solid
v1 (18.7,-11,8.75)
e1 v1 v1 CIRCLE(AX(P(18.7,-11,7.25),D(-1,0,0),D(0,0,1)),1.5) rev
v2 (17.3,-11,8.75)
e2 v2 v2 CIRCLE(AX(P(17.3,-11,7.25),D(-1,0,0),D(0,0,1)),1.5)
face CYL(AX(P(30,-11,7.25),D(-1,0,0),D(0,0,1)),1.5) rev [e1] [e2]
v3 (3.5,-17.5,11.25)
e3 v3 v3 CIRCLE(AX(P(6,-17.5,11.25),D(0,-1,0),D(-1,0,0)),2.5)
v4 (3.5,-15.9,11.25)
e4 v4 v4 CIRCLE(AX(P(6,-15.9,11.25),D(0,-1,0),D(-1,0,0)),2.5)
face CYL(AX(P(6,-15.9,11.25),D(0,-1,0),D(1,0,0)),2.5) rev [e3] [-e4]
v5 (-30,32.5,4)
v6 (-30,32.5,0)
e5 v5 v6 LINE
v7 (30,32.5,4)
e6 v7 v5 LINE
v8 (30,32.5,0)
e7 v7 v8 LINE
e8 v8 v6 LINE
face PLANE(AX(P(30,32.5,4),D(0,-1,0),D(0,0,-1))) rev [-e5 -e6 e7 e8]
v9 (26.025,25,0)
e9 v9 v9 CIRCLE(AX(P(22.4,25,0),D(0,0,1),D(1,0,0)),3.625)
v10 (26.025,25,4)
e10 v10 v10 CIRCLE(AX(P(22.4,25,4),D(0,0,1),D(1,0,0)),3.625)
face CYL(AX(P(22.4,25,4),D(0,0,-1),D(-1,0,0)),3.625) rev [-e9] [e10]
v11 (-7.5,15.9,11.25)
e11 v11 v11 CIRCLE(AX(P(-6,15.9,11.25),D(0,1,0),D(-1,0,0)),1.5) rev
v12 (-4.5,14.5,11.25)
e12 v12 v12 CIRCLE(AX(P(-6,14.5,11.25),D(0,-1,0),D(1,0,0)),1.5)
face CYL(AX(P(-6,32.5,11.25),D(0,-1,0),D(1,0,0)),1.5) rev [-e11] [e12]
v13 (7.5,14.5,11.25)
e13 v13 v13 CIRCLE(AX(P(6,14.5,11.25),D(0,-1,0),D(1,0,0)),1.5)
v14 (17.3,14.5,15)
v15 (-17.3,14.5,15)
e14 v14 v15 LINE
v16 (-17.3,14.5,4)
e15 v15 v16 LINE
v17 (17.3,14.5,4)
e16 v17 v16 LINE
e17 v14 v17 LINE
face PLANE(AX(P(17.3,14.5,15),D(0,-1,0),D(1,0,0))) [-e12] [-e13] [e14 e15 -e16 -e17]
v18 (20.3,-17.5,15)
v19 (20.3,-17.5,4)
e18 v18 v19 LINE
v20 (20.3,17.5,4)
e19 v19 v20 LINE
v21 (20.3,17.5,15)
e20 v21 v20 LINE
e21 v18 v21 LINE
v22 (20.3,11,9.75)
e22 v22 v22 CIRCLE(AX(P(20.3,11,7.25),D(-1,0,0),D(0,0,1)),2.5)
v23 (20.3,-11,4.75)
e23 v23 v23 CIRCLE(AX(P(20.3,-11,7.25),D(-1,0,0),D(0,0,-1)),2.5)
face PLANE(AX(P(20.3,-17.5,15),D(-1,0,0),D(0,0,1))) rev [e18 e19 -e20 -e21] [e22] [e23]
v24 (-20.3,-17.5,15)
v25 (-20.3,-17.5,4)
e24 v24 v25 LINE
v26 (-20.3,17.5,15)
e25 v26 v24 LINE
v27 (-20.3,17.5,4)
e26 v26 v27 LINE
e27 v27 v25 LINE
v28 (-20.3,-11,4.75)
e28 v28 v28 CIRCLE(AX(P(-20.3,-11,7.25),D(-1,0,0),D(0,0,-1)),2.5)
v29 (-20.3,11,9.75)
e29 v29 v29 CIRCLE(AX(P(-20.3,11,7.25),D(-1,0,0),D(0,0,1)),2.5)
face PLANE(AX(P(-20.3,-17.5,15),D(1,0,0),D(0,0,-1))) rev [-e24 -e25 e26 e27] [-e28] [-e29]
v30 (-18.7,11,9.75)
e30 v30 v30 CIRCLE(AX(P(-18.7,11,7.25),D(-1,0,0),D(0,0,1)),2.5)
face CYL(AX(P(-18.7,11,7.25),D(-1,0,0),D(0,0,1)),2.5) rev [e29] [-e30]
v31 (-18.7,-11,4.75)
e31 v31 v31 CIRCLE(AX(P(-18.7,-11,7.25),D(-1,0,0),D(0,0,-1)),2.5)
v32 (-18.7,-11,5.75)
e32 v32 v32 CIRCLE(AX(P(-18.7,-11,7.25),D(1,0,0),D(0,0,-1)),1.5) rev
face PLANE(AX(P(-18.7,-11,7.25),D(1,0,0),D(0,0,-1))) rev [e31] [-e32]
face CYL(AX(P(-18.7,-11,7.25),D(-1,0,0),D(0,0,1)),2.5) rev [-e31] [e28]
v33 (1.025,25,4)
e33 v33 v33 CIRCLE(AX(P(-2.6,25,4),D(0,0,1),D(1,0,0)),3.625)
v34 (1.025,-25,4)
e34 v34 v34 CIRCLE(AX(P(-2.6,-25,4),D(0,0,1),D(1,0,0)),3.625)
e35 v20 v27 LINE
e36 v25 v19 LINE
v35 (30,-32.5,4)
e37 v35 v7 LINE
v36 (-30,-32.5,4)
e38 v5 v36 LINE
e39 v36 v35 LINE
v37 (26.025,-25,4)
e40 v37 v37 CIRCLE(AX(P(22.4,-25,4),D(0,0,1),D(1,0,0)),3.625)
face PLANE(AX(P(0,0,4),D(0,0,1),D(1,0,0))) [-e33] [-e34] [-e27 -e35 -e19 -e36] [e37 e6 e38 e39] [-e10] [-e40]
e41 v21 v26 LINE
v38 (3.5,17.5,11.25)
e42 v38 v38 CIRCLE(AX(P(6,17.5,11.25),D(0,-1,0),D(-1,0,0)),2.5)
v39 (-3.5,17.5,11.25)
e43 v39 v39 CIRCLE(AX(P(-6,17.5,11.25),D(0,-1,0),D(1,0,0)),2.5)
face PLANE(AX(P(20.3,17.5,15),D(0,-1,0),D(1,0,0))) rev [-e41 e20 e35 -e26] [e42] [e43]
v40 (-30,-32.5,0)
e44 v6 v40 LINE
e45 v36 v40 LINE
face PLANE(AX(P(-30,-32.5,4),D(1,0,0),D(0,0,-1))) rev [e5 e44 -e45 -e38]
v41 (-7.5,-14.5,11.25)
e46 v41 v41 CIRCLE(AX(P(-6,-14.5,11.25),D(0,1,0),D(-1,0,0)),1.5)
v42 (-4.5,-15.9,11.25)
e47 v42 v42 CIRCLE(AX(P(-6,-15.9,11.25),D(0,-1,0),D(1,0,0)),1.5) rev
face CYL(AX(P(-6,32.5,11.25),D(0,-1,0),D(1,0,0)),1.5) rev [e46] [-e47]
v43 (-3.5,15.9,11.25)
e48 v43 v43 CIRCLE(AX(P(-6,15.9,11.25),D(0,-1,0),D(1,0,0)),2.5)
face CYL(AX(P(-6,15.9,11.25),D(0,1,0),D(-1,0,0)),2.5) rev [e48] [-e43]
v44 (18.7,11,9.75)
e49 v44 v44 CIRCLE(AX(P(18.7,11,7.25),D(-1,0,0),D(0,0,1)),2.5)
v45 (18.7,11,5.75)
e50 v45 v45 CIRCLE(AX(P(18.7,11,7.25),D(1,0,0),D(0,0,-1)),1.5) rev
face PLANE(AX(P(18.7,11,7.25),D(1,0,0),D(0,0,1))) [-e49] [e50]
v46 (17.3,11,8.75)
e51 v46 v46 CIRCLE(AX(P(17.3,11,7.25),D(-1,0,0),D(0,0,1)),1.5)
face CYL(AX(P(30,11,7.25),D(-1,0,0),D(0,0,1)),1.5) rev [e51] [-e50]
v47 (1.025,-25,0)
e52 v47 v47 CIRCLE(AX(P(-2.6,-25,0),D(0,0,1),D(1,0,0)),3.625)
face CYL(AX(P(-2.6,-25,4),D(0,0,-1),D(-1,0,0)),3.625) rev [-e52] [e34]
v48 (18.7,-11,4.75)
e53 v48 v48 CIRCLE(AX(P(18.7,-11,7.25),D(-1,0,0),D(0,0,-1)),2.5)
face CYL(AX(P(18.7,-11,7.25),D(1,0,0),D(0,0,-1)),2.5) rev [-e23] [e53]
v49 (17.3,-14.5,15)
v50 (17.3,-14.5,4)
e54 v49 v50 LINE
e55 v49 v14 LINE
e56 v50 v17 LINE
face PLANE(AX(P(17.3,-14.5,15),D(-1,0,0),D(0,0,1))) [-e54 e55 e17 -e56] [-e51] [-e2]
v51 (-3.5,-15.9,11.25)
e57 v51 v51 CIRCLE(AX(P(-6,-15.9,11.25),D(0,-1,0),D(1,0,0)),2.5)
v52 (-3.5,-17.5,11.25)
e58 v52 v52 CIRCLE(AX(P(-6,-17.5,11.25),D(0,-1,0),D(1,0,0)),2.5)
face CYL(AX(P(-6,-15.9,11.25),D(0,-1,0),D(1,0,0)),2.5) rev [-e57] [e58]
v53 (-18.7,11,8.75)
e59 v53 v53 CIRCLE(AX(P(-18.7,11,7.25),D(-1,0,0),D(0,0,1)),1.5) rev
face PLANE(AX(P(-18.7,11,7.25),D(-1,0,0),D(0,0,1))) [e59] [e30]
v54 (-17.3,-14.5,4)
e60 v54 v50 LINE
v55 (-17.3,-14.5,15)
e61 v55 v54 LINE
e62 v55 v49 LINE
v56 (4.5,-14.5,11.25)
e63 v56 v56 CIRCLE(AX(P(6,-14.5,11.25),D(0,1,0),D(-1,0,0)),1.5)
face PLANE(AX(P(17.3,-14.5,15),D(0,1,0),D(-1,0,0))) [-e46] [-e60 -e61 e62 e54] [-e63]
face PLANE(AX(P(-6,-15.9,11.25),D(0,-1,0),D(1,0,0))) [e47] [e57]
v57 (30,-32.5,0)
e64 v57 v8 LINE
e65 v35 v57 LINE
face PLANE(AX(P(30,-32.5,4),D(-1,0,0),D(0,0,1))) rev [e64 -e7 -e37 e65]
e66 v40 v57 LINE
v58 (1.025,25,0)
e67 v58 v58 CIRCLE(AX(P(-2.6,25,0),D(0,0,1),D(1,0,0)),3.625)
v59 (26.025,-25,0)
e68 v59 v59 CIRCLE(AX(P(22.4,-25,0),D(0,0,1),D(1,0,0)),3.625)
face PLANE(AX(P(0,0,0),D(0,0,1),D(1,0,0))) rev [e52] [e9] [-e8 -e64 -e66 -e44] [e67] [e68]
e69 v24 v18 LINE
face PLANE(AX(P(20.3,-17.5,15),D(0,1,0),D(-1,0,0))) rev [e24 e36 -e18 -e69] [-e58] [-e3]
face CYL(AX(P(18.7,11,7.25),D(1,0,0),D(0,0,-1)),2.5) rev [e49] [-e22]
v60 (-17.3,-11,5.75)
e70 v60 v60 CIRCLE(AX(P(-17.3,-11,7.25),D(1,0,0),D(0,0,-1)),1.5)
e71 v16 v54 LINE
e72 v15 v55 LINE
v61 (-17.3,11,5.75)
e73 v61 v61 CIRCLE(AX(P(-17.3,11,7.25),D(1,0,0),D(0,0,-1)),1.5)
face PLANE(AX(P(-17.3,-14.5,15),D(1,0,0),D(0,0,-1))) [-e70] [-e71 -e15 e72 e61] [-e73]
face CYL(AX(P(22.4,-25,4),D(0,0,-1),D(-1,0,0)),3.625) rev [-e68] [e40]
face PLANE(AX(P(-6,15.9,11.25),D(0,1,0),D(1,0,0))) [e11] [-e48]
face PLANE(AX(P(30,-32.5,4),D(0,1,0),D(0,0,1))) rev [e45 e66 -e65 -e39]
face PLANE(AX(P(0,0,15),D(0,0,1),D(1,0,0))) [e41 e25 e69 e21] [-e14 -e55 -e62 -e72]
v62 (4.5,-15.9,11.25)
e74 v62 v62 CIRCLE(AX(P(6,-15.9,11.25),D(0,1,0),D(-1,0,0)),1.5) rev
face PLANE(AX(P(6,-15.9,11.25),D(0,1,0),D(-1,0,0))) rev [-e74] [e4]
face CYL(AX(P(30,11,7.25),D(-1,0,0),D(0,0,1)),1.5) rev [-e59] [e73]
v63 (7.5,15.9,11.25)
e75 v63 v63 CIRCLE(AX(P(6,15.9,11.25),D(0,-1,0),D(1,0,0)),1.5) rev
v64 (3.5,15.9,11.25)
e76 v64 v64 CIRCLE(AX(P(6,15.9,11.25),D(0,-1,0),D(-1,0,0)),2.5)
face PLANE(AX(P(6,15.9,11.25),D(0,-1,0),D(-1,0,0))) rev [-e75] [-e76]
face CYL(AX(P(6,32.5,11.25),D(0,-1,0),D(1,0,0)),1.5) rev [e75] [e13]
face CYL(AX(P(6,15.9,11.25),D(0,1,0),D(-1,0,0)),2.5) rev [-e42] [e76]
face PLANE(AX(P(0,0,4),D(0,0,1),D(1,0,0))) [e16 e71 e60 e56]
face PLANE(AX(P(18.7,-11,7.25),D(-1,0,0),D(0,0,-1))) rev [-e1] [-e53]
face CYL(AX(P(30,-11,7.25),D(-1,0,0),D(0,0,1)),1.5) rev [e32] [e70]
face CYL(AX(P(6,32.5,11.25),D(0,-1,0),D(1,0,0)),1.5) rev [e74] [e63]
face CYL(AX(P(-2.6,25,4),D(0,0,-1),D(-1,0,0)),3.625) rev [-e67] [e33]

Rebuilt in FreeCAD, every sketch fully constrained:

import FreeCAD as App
import Part
import Sketcher
Q = App.Units.Quantity


def add_polygon(sketch, points):
    """Adds a closed chain of lines whose ends are joined by coincident constraints."""
    first, n = sketch.GeometryCount, len(points)
    for a, b in zip(points, points[1:] + points[:1]):
        sketch.addGeometry(Part.LineSegment(App.Vector(*a, 0), App.Vector(*b, 0)), False)
    for i in range(n):
        sketch.addConstraint(Sketcher.Constraint("Coincident", first + i, 2, first + (i + 1) % n, 1))

doc = App.newDocument("Part")
body = doc.addObject("PartDesign::Body", "Body")

# Sketch on XY plane
sketch1 = body.newObject("Sketcher::SketchObject", "Sketch")
sketch1.AttachmentSupport = (doc.getObject("XY_Plane"), [""])
sketch1.MapMode = "FlatFace"
add_polygon(sketch1, [(-30, 32.5), (-30, -32.5), (30, -32.5), (30, 32.5)])  # lines 0-3
sketch1.addGeometry(Part.Circle(App.Vector(-2.6, -25, 0), App.Vector(0, 0, 1), 3.6), False)  # 4
sketch1.addGeometry(Part.Circle(App.Vector(22.4, -25, 0), App.Vector(0, 0, 1), 3.6), False)  # 5
sketch1.addGeometry(Part.Circle(App.Vector(-2.6, 25, 0), App.Vector(0, 0, 1), 3.6), False)  # 6
sketch1.addGeometry(Part.Circle(App.Vector(22.4, 25, 0), App.Vector(0, 0, 1), 3.6), False)  # 7
sketch1.addConstraint(Sketcher.Constraint("Vertical", 0))
sketch1.addConstraint(Sketcher.Constraint("Horizontal", 1))
sketch1.addConstraint(Sketcher.Constraint("Vertical", 2))
sketch1.addConstraint(Sketcher.Constraint("Horizontal", 3))
sketch1.addConstraint(Sketcher.Constraint("Equal", 4, 5))
sketch1.addConstraint(Sketcher.Constraint("Equal", 5, 6))
sketch1.addConstraint(Sketcher.Constraint("Equal", 6, 7))
sketch1.addConstraint(Sketcher.Constraint("Symmetric", 0, 2, 2, 2, -1, 1))
sketch1.addConstraint(Sketcher.Constraint("Symmetric", 4, 3, 6, 3, -1))
sketch1.addConstraint(Sketcher.Constraint("Symmetric", 5, 3, 7, 3, -1))
sketch1.addConstraint(Sketcher.Constraint("Horizontal", 4, 3, 5, 3))
sketch1.addConstraint(Sketcher.Constraint("Diameter", 4, Q("7.25 mm")))
sketch1.addConstraint(Sketcher.Constraint("DistanceX", 1, 1, 1, 2, Q("60 mm")))
sketch1.addConstraint(Sketcher.Constraint("DistanceY", 0, 2, 0, 1, Q("65 mm")))
sketch1.addConstraint(Sketcher.Constraint("DistanceY", 4, 3, -1, 1, Q("25 mm")))
sketch1.addConstraint(Sketcher.Constraint("DistanceX", 4, 3, 5, 3, Q("25 mm")))
sketch1.addConstraint(Sketcher.Constraint("DistanceX", 4, 3, -1, 1, Q("2.6 mm")))
pad1 = body.newObject("PartDesign::Pad", "Pad")
pad1.Profile = sketch1
pad1.Length = 4

# Sketch on XY plane
sketch2 = body.newObject("Sketcher::SketchObject", "Sketch001")
sketch2.AttachmentSupport = (doc.getObject("XY_Plane"), [""])
sketch2.MapMode = "FlatFace"
sketch2.AttachmentOffset = App.Placement(App.Vector(0, 0, 4), App.Rotation())
add_polygon(sketch2, [(-20, 18), (-20, -18), (20, -18), (20, 18)])  # lines 0-3
add_polygon(sketch2, [(17, -14), (-17, -14), (-17, 14), (17, 14)])  # lines 4-7
sketch2.addConstraint(Sketcher.Constraint("Vertical", 0))
sketch2.addConstraint(Sketcher.Constraint("Horizontal", 1))
sketch2.addConstraint(Sketcher.Constraint("Vertical", 2))
sketch2.addConstraint(Sketcher.Constraint("Horizontal", 3))
sketch2.addConstraint(Sketcher.Constraint("Horizontal", 4))
sketch2.addConstraint(Sketcher.Constraint("Vertical", 5))
sketch2.addConstraint(Sketcher.Constraint("Horizontal", 6))
sketch2.addConstraint(Sketcher.Constraint("Vertical", 7))
sketch2.addConstraint(Sketcher.Constraint("Symmetric", 0, 2, 2, 2, -1, 1))
sketch2.addConstraint(Sketcher.Constraint("Symmetric", 4, 2, 6, 2, -1, 1))
sketch2.addConstraint(Sketcher.Constraint("DistanceY", 0, 2, 0, 1, Q("35 mm")))
sketch2.addConstraint(Sketcher.Constraint("DistanceY", 5, 1, 5, 2, Q("29 mm")))
sketch2.addConstraint(Sketcher.Constraint("DistanceX", 1, 1, 1, 2, Q("40.6 mm")))
sketch2.addConstraint(Sketcher.Constraint("DistanceX", 4, 2, 4, 1, Q("34.6 mm")))
pad2 = body.newObject("PartDesign::Pad", "Pad001")
pad2.Profile = sketch2
pad2.Length = 11

# Sketch on XZ plane
sketch3 = body.newObject("Sketcher::SketchObject", "Sketch002")
sketch3.AttachmentSupport = (doc.getObject("XZ_Plane"), [""])
sketch3.MapMode = "FlatFace"
sketch3.AttachmentOffset = App.Placement(App.Vector(0, 0, 17.5), App.Rotation())
sketch3.addGeometry(Part.Circle(App.Vector(-6, 11.2, 0), App.Vector(0, 0, 1), 1.5), False)
sketch3.addGeometry(Part.Circle(App.Vector(6, 11.2, 0), App.Vector(0, 0, 1), 1.5), False)
sketch3.addConstraint(Sketcher.Constraint("Equal", 0, 1))
sketch3.addConstraint(Sketcher.Constraint("Symmetric", 0, 3, 1, 3, -2))
sketch3.addConstraint(Sketcher.Constraint("Diameter", 0, Q("3 mm")))
sketch3.addConstraint(Sketcher.Constraint("DistanceX", 0, 3, -1, 1, Q("6 mm")))
sketch3.addConstraint(Sketcher.Constraint("DistanceY", -1, 1, 0, 3, Q("11.25 mm")))
pocket1 = body.newObject("PartDesign::Pocket", "Pocket")
pocket1.Profile = sketch3
pocket1.Type = "ThroughAll"

# Sketch on XZ plane
sketch4 = body.newObject("Sketcher::SketchObject", "Sketch003")
sketch4.AttachmentSupport = (doc.getObject("XZ_Plane"), [""])
sketch4.MapMode = "FlatFace"
sketch4.AttachmentOffset = App.Placement(App.Vector(0, 0, 17.5), App.Rotation())
sketch4.addGeometry(Part.Circle(App.Vector(-6, 11.2, 0), App.Vector(0, 0, 1), 2.5), False)
sketch4.addGeometry(Part.Circle(App.Vector(6, 11.2, 0), App.Vector(0, 0, 1), 2.5), False)
sketch4.addConstraint(Sketcher.Constraint("Equal", 0, 1))
sketch4.addConstraint(Sketcher.Constraint("Symmetric", 0, 3, 1, 3, -2))
sketch4.addConstraint(Sketcher.Constraint("Diameter", 0, Q("5 mm")))
sketch4.addConstraint(Sketcher.Constraint("DistanceX", 0, 3, -1, 1, Q("6 mm")))
sketch4.addConstraint(Sketcher.Constraint("DistanceY", -1, 1, 0, 3, Q("11.25 mm")))
pocket2 = body.newObject("PartDesign::Pocket", "Pocket001")
pocket2.Profile = sketch4
pocket2.Length = 1.6
doc.recompute()

mirrored = body.newObject("PartDesign::Mirrored", "Mirrored")
mirrored.Originals = [pocket2]
mirrored.MirrorPlane = (doc.getObject("XZ_Plane"), [""])
body.Tip = mirrored

# Sketch on YZ plane
sketch5 = body.newObject("Sketcher::SketchObject", "Sketch004")
sketch5.AttachmentSupport = (doc.getObject("YZ_Plane"), [""])
sketch5.MapMode = "FlatFace"
sketch5.AttachmentOffset = App.Placement(App.Vector(0, 0, -20.3), App.Rotation())
sketch5.addGeometry(Part.Circle(App.Vector(-11, 7.2, 0), App.Vector(0, 0, 1), 1.5), False)
sketch5.addGeometry(Part.Circle(App.Vector(11, 7.2, 0), App.Vector(0, 0, 1), 1.5), False)
sketch5.addConstraint(Sketcher.Constraint("Equal", 0, 1))
sketch5.addConstraint(Sketcher.Constraint("Symmetric", 0, 3, 1, 3, -2))
sketch5.addConstraint(Sketcher.Constraint("Diameter", 0, Q("3 mm")))
sketch5.addConstraint(Sketcher.Constraint("DistanceX", 0, 3, -1, 1, Q("11 mm")))
sketch5.addConstraint(Sketcher.Constraint("DistanceY", -1, 1, 0, 3, Q("7.25 mm")))
pocket3 = body.newObject("PartDesign::Pocket", "Pocket002")
pocket3.Profile = sketch5
pocket3.Type = "ThroughAll"
pocket3.Reversed = True

# Sketch on YZ plane
sketch6 = body.newObject("Sketcher::SketchObject", "Sketch005")
sketch6.AttachmentSupport = (doc.getObject("YZ_Plane"), [""])
sketch6.MapMode = "FlatFace"
sketch6.AttachmentOffset = App.Placement(App.Vector(0, 0, -20.3), App.Rotation())
sketch6.addGeometry(Part.Circle(App.Vector(11, 7.2, 0), App.Vector(0, 0, 1), 2.5), False)
sketch6.addGeometry(Part.Circle(App.Vector(-11, 7.2, 0), App.Vector(0, 0, 1), 2.5), False)
sketch6.addConstraint(Sketcher.Constraint("Equal", 0, 1))
sketch6.addConstraint(Sketcher.Constraint("Symmetric", 0, 3, 1, 3, -2))
sketch6.addConstraint(Sketcher.Constraint("Diameter", 0, Q("5 mm")))
sketch6.addConstraint(Sketcher.Constraint("DistanceX", -1, 1, 0, 3, Q("11 mm")))
sketch6.addConstraint(Sketcher.Constraint("DistanceY", -1, 1, 0, 3, Q("7.25 mm")))
pocket4 = body.newObject("PartDesign::Pocket", "Pocket003")
pocket4.Profile = sketch6
pocket4.Length = 1.6
pocket4.Reversed = True
doc.recompute()

mirrored2 = body.newObject("PartDesign::Mirrored", "Mirrored001")
mirrored2.Originals = [pocket4]
mirrored2.MirrorPlane = (doc.getObject("YZ_Plane"), [""])
body.Tip = mirrored2

doc.recompute()
